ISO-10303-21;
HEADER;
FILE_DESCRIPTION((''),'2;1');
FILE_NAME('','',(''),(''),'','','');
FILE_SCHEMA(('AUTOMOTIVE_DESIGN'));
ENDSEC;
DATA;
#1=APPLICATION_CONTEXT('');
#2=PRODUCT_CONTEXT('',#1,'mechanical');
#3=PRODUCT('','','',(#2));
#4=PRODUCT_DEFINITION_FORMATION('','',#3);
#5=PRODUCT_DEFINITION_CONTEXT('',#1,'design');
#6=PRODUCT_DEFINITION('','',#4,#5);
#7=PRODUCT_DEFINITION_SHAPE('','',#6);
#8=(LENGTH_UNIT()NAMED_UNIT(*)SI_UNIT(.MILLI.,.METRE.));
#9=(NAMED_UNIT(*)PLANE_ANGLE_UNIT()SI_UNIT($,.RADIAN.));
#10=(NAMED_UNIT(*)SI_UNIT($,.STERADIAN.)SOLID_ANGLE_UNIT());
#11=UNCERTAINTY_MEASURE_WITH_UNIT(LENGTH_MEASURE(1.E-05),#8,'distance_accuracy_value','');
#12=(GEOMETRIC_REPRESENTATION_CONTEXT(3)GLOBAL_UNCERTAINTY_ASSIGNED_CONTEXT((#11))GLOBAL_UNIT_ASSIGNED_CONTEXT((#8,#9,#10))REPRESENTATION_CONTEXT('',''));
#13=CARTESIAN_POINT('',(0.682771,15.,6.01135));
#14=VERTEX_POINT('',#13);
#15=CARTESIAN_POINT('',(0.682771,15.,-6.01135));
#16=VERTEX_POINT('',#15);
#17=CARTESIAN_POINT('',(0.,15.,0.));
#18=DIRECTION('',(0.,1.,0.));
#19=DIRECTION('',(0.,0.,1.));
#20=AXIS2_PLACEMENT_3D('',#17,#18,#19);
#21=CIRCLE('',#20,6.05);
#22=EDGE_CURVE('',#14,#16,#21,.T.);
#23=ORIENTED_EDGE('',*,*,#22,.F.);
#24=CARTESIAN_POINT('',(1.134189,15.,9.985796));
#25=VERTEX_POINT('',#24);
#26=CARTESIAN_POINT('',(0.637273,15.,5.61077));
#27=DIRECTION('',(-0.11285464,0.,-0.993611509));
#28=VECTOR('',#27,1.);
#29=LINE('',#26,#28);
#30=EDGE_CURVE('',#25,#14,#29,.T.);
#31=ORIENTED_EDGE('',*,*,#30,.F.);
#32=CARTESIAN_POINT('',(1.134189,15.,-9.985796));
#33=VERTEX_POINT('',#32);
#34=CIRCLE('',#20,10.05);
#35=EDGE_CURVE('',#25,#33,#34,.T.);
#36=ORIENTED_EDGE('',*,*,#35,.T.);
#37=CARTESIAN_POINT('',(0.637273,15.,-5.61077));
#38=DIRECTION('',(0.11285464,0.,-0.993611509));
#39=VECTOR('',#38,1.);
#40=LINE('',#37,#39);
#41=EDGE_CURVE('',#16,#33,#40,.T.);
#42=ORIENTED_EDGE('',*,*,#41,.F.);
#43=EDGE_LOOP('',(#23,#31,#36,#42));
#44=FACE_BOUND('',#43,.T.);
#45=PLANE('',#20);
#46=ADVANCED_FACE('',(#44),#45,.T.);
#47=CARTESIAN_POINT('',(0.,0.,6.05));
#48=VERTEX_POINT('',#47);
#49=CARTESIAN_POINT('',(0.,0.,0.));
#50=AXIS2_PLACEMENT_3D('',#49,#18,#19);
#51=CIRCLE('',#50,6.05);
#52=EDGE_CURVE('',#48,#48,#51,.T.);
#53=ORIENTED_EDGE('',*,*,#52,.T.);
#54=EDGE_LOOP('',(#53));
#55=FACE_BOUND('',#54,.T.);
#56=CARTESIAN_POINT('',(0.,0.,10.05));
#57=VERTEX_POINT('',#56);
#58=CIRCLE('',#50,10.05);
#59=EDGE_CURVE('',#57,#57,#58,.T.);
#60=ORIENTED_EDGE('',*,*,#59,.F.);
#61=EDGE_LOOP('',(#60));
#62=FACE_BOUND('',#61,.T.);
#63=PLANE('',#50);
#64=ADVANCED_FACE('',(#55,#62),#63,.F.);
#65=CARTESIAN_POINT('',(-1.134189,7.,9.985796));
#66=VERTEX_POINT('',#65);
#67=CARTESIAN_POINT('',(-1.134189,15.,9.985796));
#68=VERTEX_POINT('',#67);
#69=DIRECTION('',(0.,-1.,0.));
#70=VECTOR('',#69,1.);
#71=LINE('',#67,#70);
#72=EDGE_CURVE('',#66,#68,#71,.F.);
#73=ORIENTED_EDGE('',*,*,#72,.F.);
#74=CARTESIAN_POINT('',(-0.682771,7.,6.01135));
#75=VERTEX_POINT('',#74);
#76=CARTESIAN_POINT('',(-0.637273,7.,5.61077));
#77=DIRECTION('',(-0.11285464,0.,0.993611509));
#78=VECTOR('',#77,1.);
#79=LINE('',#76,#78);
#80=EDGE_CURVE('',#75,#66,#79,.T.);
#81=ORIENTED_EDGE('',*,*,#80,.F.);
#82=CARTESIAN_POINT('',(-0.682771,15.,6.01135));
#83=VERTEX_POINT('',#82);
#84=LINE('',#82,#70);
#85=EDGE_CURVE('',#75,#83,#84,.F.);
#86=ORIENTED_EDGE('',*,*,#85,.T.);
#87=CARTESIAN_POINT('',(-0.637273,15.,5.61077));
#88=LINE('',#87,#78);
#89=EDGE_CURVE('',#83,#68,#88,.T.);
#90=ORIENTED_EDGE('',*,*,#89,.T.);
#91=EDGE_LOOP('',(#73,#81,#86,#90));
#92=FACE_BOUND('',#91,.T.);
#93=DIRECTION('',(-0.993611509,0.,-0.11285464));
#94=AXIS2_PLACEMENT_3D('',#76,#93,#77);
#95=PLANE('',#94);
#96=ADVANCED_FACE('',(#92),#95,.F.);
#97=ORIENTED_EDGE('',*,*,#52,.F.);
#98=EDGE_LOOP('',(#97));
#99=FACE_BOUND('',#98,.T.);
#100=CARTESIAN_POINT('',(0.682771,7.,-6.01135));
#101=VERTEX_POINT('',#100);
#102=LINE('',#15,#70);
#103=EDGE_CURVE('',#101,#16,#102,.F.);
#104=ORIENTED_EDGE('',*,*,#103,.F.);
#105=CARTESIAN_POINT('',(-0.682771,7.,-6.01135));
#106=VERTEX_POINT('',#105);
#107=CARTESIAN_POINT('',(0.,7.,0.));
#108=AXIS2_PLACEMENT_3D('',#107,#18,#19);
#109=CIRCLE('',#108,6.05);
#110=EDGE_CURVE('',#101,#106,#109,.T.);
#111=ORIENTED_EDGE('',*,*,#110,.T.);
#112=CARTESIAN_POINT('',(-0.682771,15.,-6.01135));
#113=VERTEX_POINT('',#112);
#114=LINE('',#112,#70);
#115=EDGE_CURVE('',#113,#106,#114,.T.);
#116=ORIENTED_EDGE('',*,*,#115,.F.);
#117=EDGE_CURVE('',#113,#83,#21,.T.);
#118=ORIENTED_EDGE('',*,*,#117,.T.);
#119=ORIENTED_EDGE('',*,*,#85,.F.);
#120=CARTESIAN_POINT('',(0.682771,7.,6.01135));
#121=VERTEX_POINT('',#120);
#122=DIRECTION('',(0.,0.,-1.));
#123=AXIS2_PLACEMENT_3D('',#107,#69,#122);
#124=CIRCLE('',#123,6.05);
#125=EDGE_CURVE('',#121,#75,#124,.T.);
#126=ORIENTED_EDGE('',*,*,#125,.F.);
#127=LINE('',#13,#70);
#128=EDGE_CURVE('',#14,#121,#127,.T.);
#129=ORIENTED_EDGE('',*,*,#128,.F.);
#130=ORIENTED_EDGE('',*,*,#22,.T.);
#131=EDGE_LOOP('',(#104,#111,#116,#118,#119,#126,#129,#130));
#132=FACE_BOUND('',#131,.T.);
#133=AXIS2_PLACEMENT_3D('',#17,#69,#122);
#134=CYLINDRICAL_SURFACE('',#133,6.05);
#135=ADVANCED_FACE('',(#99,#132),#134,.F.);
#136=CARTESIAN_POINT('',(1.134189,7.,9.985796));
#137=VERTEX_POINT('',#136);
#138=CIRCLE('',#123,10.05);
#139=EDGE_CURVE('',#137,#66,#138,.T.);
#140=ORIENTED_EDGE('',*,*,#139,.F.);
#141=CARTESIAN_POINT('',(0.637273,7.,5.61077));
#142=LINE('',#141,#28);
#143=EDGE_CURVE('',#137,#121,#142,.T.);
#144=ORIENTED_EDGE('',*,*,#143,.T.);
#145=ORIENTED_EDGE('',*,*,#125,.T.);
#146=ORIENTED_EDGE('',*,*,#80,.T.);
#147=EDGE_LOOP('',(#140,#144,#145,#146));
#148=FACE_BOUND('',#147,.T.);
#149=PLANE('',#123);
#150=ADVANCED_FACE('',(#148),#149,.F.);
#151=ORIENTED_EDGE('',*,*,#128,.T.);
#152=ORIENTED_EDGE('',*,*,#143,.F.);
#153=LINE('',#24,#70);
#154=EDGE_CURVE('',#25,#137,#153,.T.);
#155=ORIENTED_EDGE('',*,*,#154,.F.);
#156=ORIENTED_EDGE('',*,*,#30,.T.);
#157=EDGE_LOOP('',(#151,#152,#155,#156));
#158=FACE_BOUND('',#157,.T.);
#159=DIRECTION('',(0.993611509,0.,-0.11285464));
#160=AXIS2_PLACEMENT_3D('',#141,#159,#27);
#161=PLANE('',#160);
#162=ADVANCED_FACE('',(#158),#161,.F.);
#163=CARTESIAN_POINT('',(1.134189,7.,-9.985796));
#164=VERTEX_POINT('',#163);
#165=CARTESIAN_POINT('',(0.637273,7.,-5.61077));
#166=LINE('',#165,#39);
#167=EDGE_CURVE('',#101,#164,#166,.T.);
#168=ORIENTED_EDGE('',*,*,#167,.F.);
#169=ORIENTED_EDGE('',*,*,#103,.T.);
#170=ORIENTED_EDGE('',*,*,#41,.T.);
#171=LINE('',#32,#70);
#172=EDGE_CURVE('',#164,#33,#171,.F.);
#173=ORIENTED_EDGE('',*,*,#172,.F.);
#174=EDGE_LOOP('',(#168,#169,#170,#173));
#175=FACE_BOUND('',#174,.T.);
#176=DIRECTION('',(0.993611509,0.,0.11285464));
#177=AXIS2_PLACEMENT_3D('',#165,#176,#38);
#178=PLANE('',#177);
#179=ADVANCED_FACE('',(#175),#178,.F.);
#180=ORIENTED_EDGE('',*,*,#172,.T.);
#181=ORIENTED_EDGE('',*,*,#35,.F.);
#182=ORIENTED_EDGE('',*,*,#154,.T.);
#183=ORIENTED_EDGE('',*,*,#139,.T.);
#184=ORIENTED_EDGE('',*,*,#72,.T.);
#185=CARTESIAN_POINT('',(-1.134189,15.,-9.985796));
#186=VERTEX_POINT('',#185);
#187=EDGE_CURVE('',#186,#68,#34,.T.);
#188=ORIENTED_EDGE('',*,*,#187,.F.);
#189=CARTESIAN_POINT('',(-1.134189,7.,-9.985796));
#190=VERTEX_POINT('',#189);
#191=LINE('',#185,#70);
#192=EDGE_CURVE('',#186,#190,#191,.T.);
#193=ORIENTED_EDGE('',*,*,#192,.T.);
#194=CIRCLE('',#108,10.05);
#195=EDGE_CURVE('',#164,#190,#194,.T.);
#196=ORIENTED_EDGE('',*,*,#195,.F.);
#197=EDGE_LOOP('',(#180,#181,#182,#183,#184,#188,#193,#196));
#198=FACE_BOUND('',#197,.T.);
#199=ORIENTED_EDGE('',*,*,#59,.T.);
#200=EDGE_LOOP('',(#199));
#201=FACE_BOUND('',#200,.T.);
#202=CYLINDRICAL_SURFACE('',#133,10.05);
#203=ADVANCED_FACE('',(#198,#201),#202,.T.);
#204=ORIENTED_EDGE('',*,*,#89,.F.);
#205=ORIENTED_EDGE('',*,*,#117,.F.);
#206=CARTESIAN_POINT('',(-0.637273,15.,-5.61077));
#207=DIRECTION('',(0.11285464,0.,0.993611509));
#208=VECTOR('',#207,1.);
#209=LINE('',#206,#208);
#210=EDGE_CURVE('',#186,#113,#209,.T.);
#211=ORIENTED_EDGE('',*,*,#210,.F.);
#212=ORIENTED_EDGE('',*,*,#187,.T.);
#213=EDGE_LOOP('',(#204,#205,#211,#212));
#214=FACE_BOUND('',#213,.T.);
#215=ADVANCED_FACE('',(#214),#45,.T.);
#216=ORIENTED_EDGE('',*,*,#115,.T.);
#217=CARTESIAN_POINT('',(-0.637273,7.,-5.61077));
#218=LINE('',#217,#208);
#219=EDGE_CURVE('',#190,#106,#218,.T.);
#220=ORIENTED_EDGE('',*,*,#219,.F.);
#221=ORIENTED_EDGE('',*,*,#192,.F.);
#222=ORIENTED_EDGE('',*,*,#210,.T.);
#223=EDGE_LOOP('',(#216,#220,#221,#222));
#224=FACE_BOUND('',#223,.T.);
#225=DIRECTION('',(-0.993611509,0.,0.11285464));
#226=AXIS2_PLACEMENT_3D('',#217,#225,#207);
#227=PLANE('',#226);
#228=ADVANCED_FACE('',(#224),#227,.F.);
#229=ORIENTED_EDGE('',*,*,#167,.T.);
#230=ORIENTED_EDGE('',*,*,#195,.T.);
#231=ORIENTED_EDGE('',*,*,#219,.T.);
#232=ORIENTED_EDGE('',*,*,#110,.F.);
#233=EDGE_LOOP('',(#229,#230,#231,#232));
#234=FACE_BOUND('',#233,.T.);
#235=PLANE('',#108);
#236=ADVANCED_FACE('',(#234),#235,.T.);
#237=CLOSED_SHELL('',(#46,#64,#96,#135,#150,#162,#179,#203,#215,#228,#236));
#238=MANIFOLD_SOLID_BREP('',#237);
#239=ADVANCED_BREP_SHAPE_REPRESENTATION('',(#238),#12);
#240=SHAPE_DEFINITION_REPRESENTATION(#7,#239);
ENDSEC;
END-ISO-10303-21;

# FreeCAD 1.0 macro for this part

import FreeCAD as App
import Part
import Sketcher


def add_polygon(sketch, points):
    """Adds a closed chain of lines whose ends are joined by coincident constraints."""
    first, n = sketch.GeometryCount, len(points)
    for a, b in zip(points, points[1:] + points[:1]):
        sketch.addGeometry(Part.LineSegment(App.Vector(*a, 0), App.Vector(*b, 0)), False)
    for i in range(n):
        sketch.addConstraint(Sketcher.Constraint("Coincident", first + i, 2, first + (i + 1) % n, 1))

doc = App.newDocument("Part")
body = doc.addObject("PartDesign::Body", "Body")

sketch1 = body.newObject("Sketcher::SketchObject", "Sketch")
sketch1.AttachmentSupport = (doc.getObject("XZ_Plane"), [""])
sketch1.MapMode = "FlatFace"
sketch1.addGeometry([
    Part.Circle(App.Vector(0, 0, 0), App.Vector(0, 0, 1), 10.05),
    Part.Circle(App.Vector(0, 0, 0), App.Vector(0, 0, 1), 6.05),
], False)
sketch1.addConstraint([
    Sketcher.Constraint("Coincident", 0, 3, -1, 1),
    Sketcher.Constraint("Coincident", 1, 3, -1, 1),
    Sketcher.Constraint("Diameter", 0, 20.1),
    Sketcher.Constraint("Diameter", 1, 12.1),
])
pad1 = body.newObject("PartDesign::Pad", "Pad")
pad1.Profile = sketch1
pad1.Length = 15
pad1.Reversed = True

sketch2 = body.newObject("Sketcher::SketchObject", "Sketch001")
sketch2.AttachmentSupport = (doc.getObject("XZ_Plane"), [""])
sketch2.MapMode = "FlatFace"
sketch2.AttachmentOffset = App.Placement(App.Vector(0, 0, -15), App.Rotation())
add_polygon(sketch2, [(-0.637273, -5.61077), (0.637273, -5.61077), (1.215709, -10.703521), (-1.215709, -10.703521)])
add_polygon(sketch2, [(-0.637273, 5.61077), (-1.215709, 10.703521), (1.215709, 10.703521), (0.637273, 5.61077)])
sketch2.addConstraint([
    Sketcher.Constraint("Horizontal", 0),
    Sketcher.Constraint("Horizontal", 2),
    Sketcher.Constraint("Horizontal", 5),
    Sketcher.Constraint("Horizontal", 7),
    Sketcher.Constraint("Symmetric", 1, 2, 4, 2, -1, 1),
    Sketcher.Constraint("Symmetric", 3, 2, 6, 2, -1, 1),
    Sketcher.Constraint("Parallel", 1, 4),
    Sketcher.Constraint("Parallel", 3, 6),
    Sketcher.Constraint("Vertical", 2, 2, 4, 2),
    Sketcher.Constraint("Vertical", 0, 2, 6, 2),
    Sketcher.Constraint("DistanceX", 0, 1, 0, 2, 1.274545),
    Sketcher.Constraint("DistanceX", 2, 2, 2, 1, 2.431417),
    Sketcher.Constraint("DistanceY", 0, 2, -1, 1, 5.61077),
    Sketcher.Constraint("DistanceY", 1, 2, -1, 1, 10.703521),
])
pocket1 = body.newObject("PartDesign::Pocket", "Pocket")
pocket1.Profile = sketch2
pocket1.Length = 8
pocket1.Reversed = True

doc.recompute()
